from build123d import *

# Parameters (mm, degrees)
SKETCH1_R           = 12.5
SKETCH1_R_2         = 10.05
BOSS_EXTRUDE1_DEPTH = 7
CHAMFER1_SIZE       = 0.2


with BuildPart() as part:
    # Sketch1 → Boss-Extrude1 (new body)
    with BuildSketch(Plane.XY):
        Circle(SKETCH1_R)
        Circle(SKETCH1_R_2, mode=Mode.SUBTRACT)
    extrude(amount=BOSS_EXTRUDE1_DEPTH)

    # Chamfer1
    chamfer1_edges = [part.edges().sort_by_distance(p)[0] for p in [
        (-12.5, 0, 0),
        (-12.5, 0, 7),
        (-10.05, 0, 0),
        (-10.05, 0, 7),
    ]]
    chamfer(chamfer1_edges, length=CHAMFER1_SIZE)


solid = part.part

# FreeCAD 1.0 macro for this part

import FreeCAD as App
import Part
import Sketcher

V = App.Vector


def edges_at(feature, points):
    """Names of the edges that pass closest to the given points."""
    edges = feature.Shape.Edges
    near = lambda p: min(range(len(edges)), key=lambda i: edges[i].distToShape(Part.Vertex(*p))[0])
    return sorted({f"Edge{near(p) + 1}" for p in points})

doc = App.newDocument("Part")
body = doc.addObject("PartDesign::Body", "Body")

# Sketch on XY plane
sketch1 = body.newObject("Sketcher::SketchObject", "Sketch")
sketch1.AttachmentSupport = (doc.getObject("XY_Plane"), [""])
sketch1.MapMode = "FlatFace"
sketch1.addGeometry([
    Part.Circle(V(0, 0, 0), V(0, 0, 1), 12.5),
    Part.Circle(V(0, 0, 0), V(0, 0, 1), 10.05),
], False)
sketch1.addConstraint([
    Sketcher.Constraint("Coincident", 0, 3, -1, 1),
    Sketcher.Constraint("Coincident", 1, 3, -1, 1),
    Sketcher.Constraint("Diameter", 0, 25.0),
    Sketcher.Constraint("Diameter", 1, 20.1),
])
pad1 = body.newObject("PartDesign::Pad", "Pad")
pad1.Profile = sketch1
pad1.Length = 7
doc.recompute()

chamfer = body.newObject("PartDesign::Chamfer", "Chamfer")
chamfer.Base = (pad1, edges_at(pad1, [
    (-12.5, 0, 0),
    (-12.5, 0, 7),
    (-10.05, 0, 0),
    (-10.05, 0, 7),
]))
chamfer.Size = 0.2

doc.recompute()
